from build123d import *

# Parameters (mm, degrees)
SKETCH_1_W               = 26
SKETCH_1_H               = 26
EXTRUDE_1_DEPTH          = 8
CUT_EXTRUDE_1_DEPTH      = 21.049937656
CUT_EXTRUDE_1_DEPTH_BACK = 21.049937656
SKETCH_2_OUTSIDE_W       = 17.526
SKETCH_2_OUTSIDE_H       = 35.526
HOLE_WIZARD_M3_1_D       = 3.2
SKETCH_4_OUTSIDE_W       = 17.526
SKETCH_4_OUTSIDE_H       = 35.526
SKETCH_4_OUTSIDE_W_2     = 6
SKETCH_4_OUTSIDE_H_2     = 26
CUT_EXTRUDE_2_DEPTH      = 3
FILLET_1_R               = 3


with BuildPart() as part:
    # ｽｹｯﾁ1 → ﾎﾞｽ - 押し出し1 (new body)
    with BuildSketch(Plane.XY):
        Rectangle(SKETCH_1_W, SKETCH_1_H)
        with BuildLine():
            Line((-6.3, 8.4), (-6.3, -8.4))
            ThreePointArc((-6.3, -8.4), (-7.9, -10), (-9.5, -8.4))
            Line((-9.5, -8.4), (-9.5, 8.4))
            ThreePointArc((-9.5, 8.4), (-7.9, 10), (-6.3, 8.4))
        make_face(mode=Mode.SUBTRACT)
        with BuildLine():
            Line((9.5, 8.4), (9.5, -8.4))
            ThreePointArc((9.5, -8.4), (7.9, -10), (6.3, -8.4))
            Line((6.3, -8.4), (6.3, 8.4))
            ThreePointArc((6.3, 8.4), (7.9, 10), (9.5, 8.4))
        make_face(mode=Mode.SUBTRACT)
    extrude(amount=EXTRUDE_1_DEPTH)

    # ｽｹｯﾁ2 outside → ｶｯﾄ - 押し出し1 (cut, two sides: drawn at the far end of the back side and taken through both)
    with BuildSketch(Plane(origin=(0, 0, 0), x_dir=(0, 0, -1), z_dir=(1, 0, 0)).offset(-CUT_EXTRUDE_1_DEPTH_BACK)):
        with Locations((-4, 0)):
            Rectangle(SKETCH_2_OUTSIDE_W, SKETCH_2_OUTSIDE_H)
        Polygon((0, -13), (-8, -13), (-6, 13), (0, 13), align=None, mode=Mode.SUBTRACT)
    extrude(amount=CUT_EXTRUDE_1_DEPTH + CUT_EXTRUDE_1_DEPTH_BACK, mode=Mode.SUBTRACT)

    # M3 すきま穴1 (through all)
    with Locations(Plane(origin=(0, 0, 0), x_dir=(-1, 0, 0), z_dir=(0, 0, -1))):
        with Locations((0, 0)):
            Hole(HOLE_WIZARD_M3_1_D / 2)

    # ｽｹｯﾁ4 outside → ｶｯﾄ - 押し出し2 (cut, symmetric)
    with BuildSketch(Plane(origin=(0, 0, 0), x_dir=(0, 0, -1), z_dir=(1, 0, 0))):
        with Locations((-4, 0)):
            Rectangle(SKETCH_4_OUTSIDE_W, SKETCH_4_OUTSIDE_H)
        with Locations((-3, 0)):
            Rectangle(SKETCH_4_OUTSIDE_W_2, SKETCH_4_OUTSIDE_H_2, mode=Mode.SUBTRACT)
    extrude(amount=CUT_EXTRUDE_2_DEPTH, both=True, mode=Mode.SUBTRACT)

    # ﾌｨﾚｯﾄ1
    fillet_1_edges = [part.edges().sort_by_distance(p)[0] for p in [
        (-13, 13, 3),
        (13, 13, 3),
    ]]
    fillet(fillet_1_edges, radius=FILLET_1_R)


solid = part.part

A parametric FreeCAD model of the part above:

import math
import FreeCAD as App
import Part
import Sketcher
from FreeCAD import Vector


def edges_at(feature, points):
    """Names of the edges that pass closest to the given points."""
    edges = feature.Shape.Edges
    near = lambda p: min(range(len(edges)), key=lambda i: edges[i].distToShape(Part.Vertex(*p))[0])
    return sorted({f"Edge{near(p) + 1}" for p in points})


def add_polygon(sketch, points):
    """Adds a closed chain of lines whose ends are joined by coincident constraints."""
    first, n = sketch.GeometryCount, len(points)
    for a, b in zip(points, points[1:] + points[:1]):
        sketch.addGeometry(Part.LineSegment(App.Vector(*a, 0), App.Vector(*b, 0)), False)
    for i in range(n):
        sketch.addConstraint(Sketcher.Constraint("Coincident", first + i, 2, first + (i + 1) % n, 1))

doc = App.newDocument("Part")
body = doc.addObject("PartDesign::Body", "Body")

# Sketch on XY plane
sketch1 = body.newObject("Sketcher::SketchObject", "Sketch")
sketch1.AttachmentSupport = (doc.getObject("XY_Plane"), [""])
sketch1.MapMode = "FlatFace"
add_polygon(sketch1, [(-13, 13), (-13, -13), (13, -13), (13, 13)])  # lines 0-3
sketch1.addGeometry(Part.ArcOfCircle(Part.Circle(Vector(-7.9, 8.4, 0), Vector(0, 0, 1), 1.6), math.radians(0), math.radians(180)), False)  # 4
sketch1.addGeometry(Part.LineSegment(Vector(-6.3, 8.4, 0), Vector(-6.3, -8.4, 0)), False)  # 5
sketch1.addGeometry(Part.ArcOfCircle(Part.Circle(Vector(-7.9, -8.4, 0), Vector(0, 0, 1), 1.6), math.radians(180), math.radians(360)), False)  # 6
sketch1.addGeometry(Part.LineSegment(Vector(-9.5, -8.4, 0), Vector(-9.5, 8.4, 0)), False)  # 7
sketch1.addGeometry(Part.ArcOfCircle(Part.Circle(Vector(7.9, 8.4, 0), Vector(0, 0, 1), 1.6), math.radians(0), math.radians(180)), False)  # 8
sketch1.addGeometry(Part.LineSegment(Vector(9.5, 8.4, 0), Vector(9.5, -8.4, 0)), False)  # 9
sketch1.addGeometry(Part.ArcOfCircle(Part.Circle(Vector(7.9, -8.4, 0), Vector(0, 0, 1), 1.6), math.radians(180), math.radians(360)), False)  # 10
sketch1.addGeometry(Part.LineSegment(Vector(6.3, -8.4, 0), Vector(6.3, 8.4, 0)), False)  # 11
sketch1.addConstraint(Sketcher.Constraint("Tangent", 4, 1, 5, 1))
sketch1.addConstraint(Sketcher.Constraint("Tangent", 5, 2, 6, 2))
sketch1.addConstraint(Sketcher.Constraint("Tangent", 6, 1, 7, 1))
sketch1.addConstraint(Sketcher.Constraint("Tangent", 7, 2, 4, 2))
sketch1.addConstraint(Sketcher.Constraint("Tangent", 8, 1, 9, 1))
sketch1.addConstraint(Sketcher.Constraint("Tangent", 9, 2, 10, 2))
sketch1.addConstraint(Sketcher.Constraint("Tangent", 10, 1, 11, 1))
sketch1.addConstraint(Sketcher.Constraint("Tangent", 11, 2, 8, 2))
sketch1.addConstraint(Sketcher.Constraint("Vertical", 0))
sketch1.addConstraint(Sketcher.Constraint("Horizontal", 1))
sketch1.addConstraint(Sketcher.Constraint("Vertical", 2))
sketch1.addConstraint(Sketcher.Constraint("Horizontal", 3))
sketch1.addConstraint(Sketcher.Constraint("Vertical", 5))
sketch1.addConstraint(Sketcher.Constraint("Vertical", 7))
sketch1.addConstraint(Sketcher.Constraint("Vertical", 9))
sketch1.addConstraint(Sketcher.Constraint("Vertical", 11))
sketch1.addConstraint(Sketcher.Constraint("Equal", 6, 8))
sketch1.addConstraint(Sketcher.Constraint("Symmetric", 6, 3, 8, 3, -1, 1))
sketch1.addConstraint(Sketcher.Constraint("Symmetric", 0, 2, 2, 2, -1, 1))
sketch1.addConstraint(Sketcher.Constraint("Horizontal", 4, 3, 8, 3))
sketch1.addConstraint(Sketcher.Constraint("Horizontal", 6, 3, 10, 3))
sketch1.addConstraint(Sketcher.Constraint("Equal", 3, 0))
sketch1.addConstraint(Sketcher.Constraint("Radius", 4, 1.6))
sketch1.addConstraint(Sketcher.Constraint("DistanceX", 1, 1, 1, 2, 26.0))
sketch1.addConstraint(Sketcher.Constraint("DistanceY", 5, 2, 5, 1, 16.8))
sketch1.addConstraint(Sketcher.Constraint("DistanceX", 4, 3, -1, 1, 7.9))
pad1 = body.newObject("PartDesign::Pad", "Pad")
pad1.Profile = sketch1
pad1.Length = 8

# Sketch on YZ plane
sketch2 = body.newObject("Sketcher::SketchObject", "Sketch001")
sketch2.AttachmentSupport = (doc.getObject("YZ_Plane"), [""])
sketch2.MapMode = "FlatFace"
add_polygon(sketch2, [(18, 13), (-18, 13), (-18, -5), (18, -5)])  # lines 0-3
add_polygon(sketch2, [(13, 0), (-13, 0), (-13, 8), (13, 6)])  # lines 4-7
sketch2.addConstraint(Sketcher.Constraint("Horizontal", 0))
sketch2.addConstraint(Sketcher.Constraint("Vertical", 1))
sketch2.addConstraint(Sketcher.Constraint("Horizontal", 2))
sketch2.addConstraint(Sketcher.Constraint("Vertical", 3))
sketch2.addConstraint(Sketcher.Constraint("Horizontal", 4))
sketch2.addConstraint(Sketcher.Constraint("Vertical", 5))
sketch2.addConstraint(Sketcher.Constraint("Vertical", 7))
sketch2.addConstraint(Sketcher.Constraint("Symmetric", 4, 2, 7, 2, -1, 1))
sketch2.addConstraint(Sketcher.Constraint("DistanceX", 4, 2, 4, 1, 26.0))
sketch2.addConstraint(Sketcher.Constraint("DistanceY", 5, 1, 5, 2, 8.0))
sketch2.addConstraint(Sketcher.Constraint("DistanceY", 7, 2, 7, 1, 6.0))
sketch2.addConstraint(Sketcher.Constraint("DistanceX", 0, 2, 0, 1, 35.526))
sketch2.addConstraint(Sketcher.Constraint("DistanceY", 1, 2, 1, 1, 17.526))
sketch2.addConstraint(Sketcher.Constraint("DistanceX", 0, 2, -1, 1, 17.763))
sketch2.addConstraint(Sketcher.Constraint("DistanceY", -1, 1, 0, 2, 12.763))
pocket1 = body.newObject("PartDesign::Pocket", "Pocket")
pocket1.Profile = sketch2
pocket1.Type = "ThroughAll"
pocket1.Midplane = True

# Sketch on XY plane
sketch3 = body.newObject("Sketcher::SketchObject", "Sketch002")
sketch3.AttachmentSupport = (doc.getObject("XY_Plane"), [""])
sketch3.MapMode = "FlatFace"
sketch3.addGeometry(Part.Circle(Vector(0, 0, 0), Vector(0, 0, 1), 1.6), False)
sketch3.addConstraint(Sketcher.Constraint("Coincident", 0, 3, -1, 1))
sketch3.addConstraint(Sketcher.Constraint("Diameter", 0, 3.2))
doc.recompute()
hole = body.newObject("PartDesign::Hole", "Hole")
hole.Profile = sketch3
hole.ThreadType = "None"
hole.Diameter = 3.2
hole.DepthType = "ThroughAll"
hole.Reversed = True

# Sketch on YZ plane
sketch4 = body.newObject("Sketcher::SketchObject", "Sketch003")
sketch4.AttachmentSupport = (doc.getObject("YZ_Plane"), [""])
sketch4.MapMode = "FlatFace"
add_polygon(sketch4, [(18, 13), (-18, 13), (-18, -5), (18, -5)])  # lines 0-3
add_polygon(sketch4, [(-13, 0), (-13, 6), (13, 6), (13, 0)])  # lines 4-7
sketch4.addConstraint(Sketcher.Constraint("Horizontal", 0))
sketch4.addConstraint(Sketcher.Constraint("Vertical", 1))
sketch4.addConstraint(Sketcher.Constraint("Horizontal", 2))
sketch4.addConstraint(Sketcher.Constraint("Vertical", 3))
sketch4.addConstraint(Sketcher.Constraint("Vertical", 4))
sketch4.addConstraint(Sketcher.Constraint("Horizontal", 5))
sketch4.addConstraint(Sketcher.Constraint("Vertical", 6))
sketch4.addConstraint(Sketcher.Constraint("Horizontal", 7))
sketch4.addConstraint(Sketcher.Constraint("Symmetric", 6, 2, 7, 2, -1, 1))
sketch4.addConstraint(Sketcher.Constraint("DistanceX", 5, 1, 5, 2, 26.0))
sketch4.addConstraint(Sketcher.Constraint("DistanceY", 4, 1, 4, 2, 6.0))
sketch4.addConstraint(Sketcher.Constraint("DistanceX", 0, 2, 0, 1, 35.526))
sketch4.addConstraint(Sketcher.Constraint("DistanceY", 1, 2, 1, 1, 17.526))
sketch4.addConstraint(Sketcher.Constraint("DistanceX", 0, 2, -1, 1, 17.763))
sketch4.addConstraint(Sketcher.Constraint("DistanceY", -1, 1, 0, 2, 12.763))
pocket2 = body.newObject("PartDesign::Pocket", "Pocket001")
pocket2.Profile = sketch4
pocket2.Length = 6
pocket2.Midplane = True
doc.recompute()

fillet = body.newObject("PartDesign::Fillet", "Fillet")
fillet.Base = (pocket2, edges_at(pocket2, [(-13, 13, 3), (13, 13, 3)]))
fillet.Radius = 3

doc.recompute()
